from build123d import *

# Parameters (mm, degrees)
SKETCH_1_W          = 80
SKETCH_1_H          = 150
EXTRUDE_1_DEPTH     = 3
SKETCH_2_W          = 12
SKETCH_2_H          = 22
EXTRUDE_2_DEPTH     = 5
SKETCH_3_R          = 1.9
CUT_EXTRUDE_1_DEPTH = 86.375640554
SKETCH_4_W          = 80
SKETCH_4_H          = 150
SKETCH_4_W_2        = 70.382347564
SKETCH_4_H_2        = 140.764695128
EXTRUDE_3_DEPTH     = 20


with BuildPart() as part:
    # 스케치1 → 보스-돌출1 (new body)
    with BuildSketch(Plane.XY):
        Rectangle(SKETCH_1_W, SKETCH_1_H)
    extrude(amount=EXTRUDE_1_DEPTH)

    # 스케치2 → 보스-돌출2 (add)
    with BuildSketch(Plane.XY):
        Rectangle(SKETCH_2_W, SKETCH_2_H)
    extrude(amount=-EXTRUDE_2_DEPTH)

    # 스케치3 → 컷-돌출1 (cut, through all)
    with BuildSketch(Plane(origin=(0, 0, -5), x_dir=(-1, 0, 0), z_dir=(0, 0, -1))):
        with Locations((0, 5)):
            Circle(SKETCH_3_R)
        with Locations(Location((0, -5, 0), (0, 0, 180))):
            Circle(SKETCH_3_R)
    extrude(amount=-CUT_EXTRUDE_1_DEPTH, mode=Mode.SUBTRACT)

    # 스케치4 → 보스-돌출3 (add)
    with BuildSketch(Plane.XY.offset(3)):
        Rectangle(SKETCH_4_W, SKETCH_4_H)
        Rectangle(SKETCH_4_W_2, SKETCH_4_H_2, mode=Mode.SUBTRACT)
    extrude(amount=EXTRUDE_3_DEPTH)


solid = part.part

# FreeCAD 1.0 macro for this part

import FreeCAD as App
import Part
import Sketcher
from FreeCAD import Vector
Q = App.Units.Quantity

doc = App.newDocument("Part")
body = doc.addObject("PartDesign::Body", "Body")

# Sketch on XY plane
sketch1 = doc.addObject("Sketcher::SketchObject", "Sketch")
body.addObject(sketch1)
sketch1.AttachmentSupport = (doc.XY_Plane, [""])
sketch1.MapMode = "FlatFace"
sketch1.addGeometry([
    Part.LineSegment(Vector(-40, 75, 0), Vector(-40, -75, 0)),
    Part.LineSegment(Vector(-40, -75, 0), Vector(40, -75, 0)),
    Part.LineSegment(Vector(40, -75, 0), Vector(40, 75, 0)),
    Part.LineSegment(Vector(40, 75, 0), Vector(-40, 75, 0)),
], False)
sketch1.addConstraint([
    Sketcher.Constraint("Coincident", 0, 2, 1, 1),
    Sketcher.Constraint("Coincident", 1, 2, 2, 1),
    Sketcher.Constraint("Coincident", 2, 2, 3, 1),
    Sketcher.Constraint("Coincident", 3, 2, 0, 1),
    Sketcher.Constraint("Vertical", 0),
    Sketcher.Constraint("Horizontal", 1),
    Sketcher.Constraint("Vertical", 2),
    Sketcher.Constraint("Horizontal", 3),
    Sketcher.Constraint("Symmetric", 0, 2, 2, 2, -1, 1),
    Sketcher.Constraint("DistanceX", 1, 1, 1, 2, Q("80 mm")),
    Sketcher.Constraint("DistanceY", 0, 2, 0, 1, Q("150 mm")),
])
pad1 = doc.addObject("PartDesign::Pad", "Pad")
body.addObject(pad1)
pad1.Profile = sketch1
pad1.Length = 3

# Sketch on XY plane
sketch2 = doc.addObject("Sketcher::SketchObject", "Sketch001")
body.addObject(sketch2)
sketch2.AttachmentSupport = (doc.XY_Plane, [""])
sketch2.MapMode = "FlatFace"
sketch2.addGeometry([
    Part.LineSegment(Vector(-6, 11, 0), Vector(-6, -11, 0)),
    Part.LineSegment(Vector(-6, -11, 0), Vector(6, -11, 0)),
    Part.LineSegment(Vector(6, -11, 0), Vector(6, 11, 0)),
    Part.LineSegment(Vector(6, 11, 0), Vector(-6, 11, 0)),
], False)
sketch2.addConstraint([
    Sketcher.Constraint("Coincident", 0, 2, 1, 1),
    Sketcher.Constraint("Coincident", 1, 2, 2, 1),
    Sketcher.Constraint("Coincident", 2, 2, 3, 1),
    Sketcher.Constraint("Coincident", 3, 2, 0, 1),
    Sketcher.Constraint("Vertical", 0),
    Sketcher.Constraint("Horizontal", 1),
    Sketcher.Constraint("Vertical", 2),
    Sketcher.Constraint("Horizontal", 3),
    Sketcher.Constraint("Symmetric", 0, 2, 2, 2, -1, 1),
    Sketcher.Constraint("DistanceX", 1, 1, 1, 2, Q("12 mm")),
    Sketcher.Constraint("DistanceY", 0, 2, 0, 1, Q("22 mm")),
])
pad2 = doc.addObject("PartDesign::Pad", "Pad001")
body.addObject(pad2)
pad2.Profile = sketch2
pad2.Length = 5
pad2.Reversed = True

# Sketch on XY plane
sketch3 = doc.addObject("Sketcher::SketchObject", "Sketch002")
body.addObject(sketch3)
sketch3.AttachmentSupport = (doc.XY_Plane, [""])
sketch3.MapMode = "FlatFace"
sketch3.AttachmentOffset = App.Placement(Vector(0, 0, -5), App.Rotation())
sketch3.addGeometry([
    Part.Circle(Vector(0, 5, 0), Vector(0, 0, 1), 1.9),
    Part.Circle(Vector(0, -5, 0), Vector(0, 0, 1), 1.9),
], False)
sketch3.addConstraint([
    Sketcher.Constraint("Equal", 0, 1),
    Sketcher.Constraint("Symmetric", 0, 3, 1, 3, -1, 1),
    Sketcher.Constraint("PointOnObject", 0, 3, -2),
    Sketcher.Constraint("Diameter", 0, Q("3.8 mm")),
    Sketcher.Constraint("DistanceY", -1, 1, 0, 3, Q("5 mm")),
])
pocket1 = doc.addObject("PartDesign::Pocket", "Pocket")
body.addObject(pocket1)
pocket1.Profile = sketch3
pocket1.Type = "ThroughAll"
pocket1.Reversed = True

# Sketch on XY plane
sketch4 = doc.addObject("Sketcher::SketchObject", "Sketch003")
body.addObject(sketch4)
sketch4.AttachmentSupport = (doc.XY_Plane, [""])
sketch4.MapMode = "FlatFace"
sketch4.AttachmentOffset = App.Placement(Vector(0, 0, 3), App.Rotation())
sketch4.addGeometry([
    Part.LineSegment(Vector(-40, 75, 0), Vector(-40, -75, 0)),  # 0
    Part.LineSegment(Vector(-40, -75, 0), Vector(40, -75, 0)),  # 1
    Part.LineSegment(Vector(40, -75, 0), Vector(40, 75, 0)),  # 2
    Part.LineSegment(Vector(40, 75, 0), Vector(-40, 75, 0)),  # 3
    Part.LineSegment(Vector(35, -70, 0), Vector(-35, -70, 0)),  # 4
    Part.LineSegment(Vector(-35, -70, 0), Vector(-35, 70, 0)),  # 5
    Part.LineSegment(Vector(-35, 70, 0), Vector(35, 70, 0)),  # 6
    Part.LineSegment(Vector(35, 70, 0), Vector(35, -70, 0)),  # 7
], False)
sketch4.addConstraint([
    Sketcher.Constraint("Coincident", 0, 2, 1, 1),
    Sketcher.Constraint("Coincident", 1, 2, 2, 1),
    Sketcher.Constraint("Coincident", 2, 2, 3, 1),
    Sketcher.Constraint("Coincident", 3, 2, 0, 1),
    Sketcher.Constraint("Coincident", 4, 2, 5, 1),
    Sketcher.Constraint("Coincident", 5, 2, 6, 1),
    Sketcher.Constraint("Coincident", 6, 2, 7, 1),
    Sketcher.Constraint("Coincident", 7, 2, 4, 1),
    Sketcher.Constraint("Vertical", 0),
    Sketcher.Constraint("Horizontal", 1),
    Sketcher.Constraint("Vertical", 2),
    Sketcher.Constraint("Horizontal", 3),
    Sketcher.Constraint("Horizontal", 4),
    Sketcher.Constraint("Vertical", 5),
    Sketcher.Constraint("Horizontal", 6),
    Sketcher.Constraint("Vertical", 7),
    Sketcher.Constraint("Symmetric", 0, 2, 2, 2, -1, 1),
    Sketcher.Constraint("Symmetric", 4, 2, 6, 2, -1, 1),
    Sketcher.Constraint("DistanceX", 1, 1, 1, 2, Q("80 mm")),
    Sketcher.Constraint("DistanceY", 0, 2, 0, 1, Q("150 mm")),
    Sketcher.Constraint("DistanceX", 4, 2, 4, 1, Q("70.382348 mm")),
    Sketcher.Constraint("DistanceY", 5, 1, 5, 2, Q("140.764695 mm")),
])
pad3 = doc.addObject("PartDesign::Pad", "Pad002")
body.addObject(pad3)
pad3.Profile = sketch4
pad3.Length = 20

doc.recompute()
